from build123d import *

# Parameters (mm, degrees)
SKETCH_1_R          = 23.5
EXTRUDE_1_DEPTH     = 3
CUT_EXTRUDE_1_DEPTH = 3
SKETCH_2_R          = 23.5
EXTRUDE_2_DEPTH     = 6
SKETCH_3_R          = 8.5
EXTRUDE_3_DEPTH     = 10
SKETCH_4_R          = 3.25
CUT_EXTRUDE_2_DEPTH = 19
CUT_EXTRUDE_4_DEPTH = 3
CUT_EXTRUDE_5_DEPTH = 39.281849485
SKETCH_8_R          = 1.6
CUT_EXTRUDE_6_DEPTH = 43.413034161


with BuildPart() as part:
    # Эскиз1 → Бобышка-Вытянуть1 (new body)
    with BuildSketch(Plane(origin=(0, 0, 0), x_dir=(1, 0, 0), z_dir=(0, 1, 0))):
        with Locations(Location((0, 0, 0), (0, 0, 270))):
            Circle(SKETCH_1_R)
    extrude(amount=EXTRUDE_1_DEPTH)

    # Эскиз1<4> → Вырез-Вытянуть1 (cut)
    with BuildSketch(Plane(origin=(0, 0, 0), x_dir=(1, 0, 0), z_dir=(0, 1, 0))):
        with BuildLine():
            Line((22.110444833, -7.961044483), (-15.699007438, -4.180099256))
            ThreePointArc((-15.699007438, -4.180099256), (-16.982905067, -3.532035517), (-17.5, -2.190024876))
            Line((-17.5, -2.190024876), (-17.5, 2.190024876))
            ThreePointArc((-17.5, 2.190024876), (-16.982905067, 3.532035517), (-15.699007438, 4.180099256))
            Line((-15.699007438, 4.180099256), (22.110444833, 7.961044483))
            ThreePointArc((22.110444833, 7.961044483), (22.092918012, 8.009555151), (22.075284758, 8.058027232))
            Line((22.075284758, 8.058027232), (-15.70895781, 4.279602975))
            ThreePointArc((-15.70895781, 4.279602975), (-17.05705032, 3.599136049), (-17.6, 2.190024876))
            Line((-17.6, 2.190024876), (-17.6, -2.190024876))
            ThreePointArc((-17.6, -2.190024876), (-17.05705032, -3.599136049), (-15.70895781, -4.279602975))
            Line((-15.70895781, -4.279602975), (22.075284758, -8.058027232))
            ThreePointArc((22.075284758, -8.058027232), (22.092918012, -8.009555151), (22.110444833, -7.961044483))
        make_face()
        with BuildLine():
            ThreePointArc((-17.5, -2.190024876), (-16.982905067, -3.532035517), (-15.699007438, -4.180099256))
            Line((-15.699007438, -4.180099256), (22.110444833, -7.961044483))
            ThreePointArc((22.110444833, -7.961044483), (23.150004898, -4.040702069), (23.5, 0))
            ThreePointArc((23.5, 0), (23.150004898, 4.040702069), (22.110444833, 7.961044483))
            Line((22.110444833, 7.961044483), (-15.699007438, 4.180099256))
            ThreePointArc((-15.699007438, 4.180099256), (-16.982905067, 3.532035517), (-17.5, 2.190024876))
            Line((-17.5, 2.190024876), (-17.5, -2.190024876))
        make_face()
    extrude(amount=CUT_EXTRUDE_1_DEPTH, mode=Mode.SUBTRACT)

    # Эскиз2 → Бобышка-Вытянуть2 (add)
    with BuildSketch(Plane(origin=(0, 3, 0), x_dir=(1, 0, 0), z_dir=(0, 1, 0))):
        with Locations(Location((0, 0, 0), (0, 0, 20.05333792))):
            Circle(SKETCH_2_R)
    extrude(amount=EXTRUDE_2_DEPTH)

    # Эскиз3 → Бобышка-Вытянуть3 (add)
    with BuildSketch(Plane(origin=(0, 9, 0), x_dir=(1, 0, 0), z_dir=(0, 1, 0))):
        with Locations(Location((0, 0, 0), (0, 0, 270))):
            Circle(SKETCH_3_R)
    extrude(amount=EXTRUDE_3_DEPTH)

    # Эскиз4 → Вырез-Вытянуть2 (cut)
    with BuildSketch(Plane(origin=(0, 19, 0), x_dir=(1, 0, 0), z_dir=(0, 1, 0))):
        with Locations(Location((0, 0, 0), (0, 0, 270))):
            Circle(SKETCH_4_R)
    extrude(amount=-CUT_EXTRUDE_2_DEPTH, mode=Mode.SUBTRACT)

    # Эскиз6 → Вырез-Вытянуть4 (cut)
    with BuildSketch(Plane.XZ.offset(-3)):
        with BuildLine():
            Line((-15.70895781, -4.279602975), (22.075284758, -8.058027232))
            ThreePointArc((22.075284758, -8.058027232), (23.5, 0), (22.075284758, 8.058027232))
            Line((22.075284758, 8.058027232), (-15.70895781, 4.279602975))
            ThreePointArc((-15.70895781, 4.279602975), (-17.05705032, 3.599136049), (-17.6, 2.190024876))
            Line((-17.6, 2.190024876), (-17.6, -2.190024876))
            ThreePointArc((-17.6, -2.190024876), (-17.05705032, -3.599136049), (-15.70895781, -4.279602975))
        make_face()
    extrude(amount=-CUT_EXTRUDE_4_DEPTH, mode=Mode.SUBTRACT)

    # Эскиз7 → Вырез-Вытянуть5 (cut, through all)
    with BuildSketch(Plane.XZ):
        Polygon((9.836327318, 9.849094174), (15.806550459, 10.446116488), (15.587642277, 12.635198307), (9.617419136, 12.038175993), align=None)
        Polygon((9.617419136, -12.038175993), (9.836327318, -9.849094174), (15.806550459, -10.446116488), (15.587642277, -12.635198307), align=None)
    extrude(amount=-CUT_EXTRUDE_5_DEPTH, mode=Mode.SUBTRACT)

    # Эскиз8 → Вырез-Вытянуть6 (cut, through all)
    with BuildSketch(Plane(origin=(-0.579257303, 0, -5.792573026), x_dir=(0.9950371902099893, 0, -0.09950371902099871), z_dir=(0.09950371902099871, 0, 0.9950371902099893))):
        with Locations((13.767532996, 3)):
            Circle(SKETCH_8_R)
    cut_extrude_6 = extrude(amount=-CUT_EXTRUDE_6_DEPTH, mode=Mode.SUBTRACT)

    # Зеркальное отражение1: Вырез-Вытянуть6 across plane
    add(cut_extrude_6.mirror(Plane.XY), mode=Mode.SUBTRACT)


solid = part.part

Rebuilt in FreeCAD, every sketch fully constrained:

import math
import FreeCAD as App
import Part
import Sketcher

V = App.Vector
Q = App.Units.Quantity


def add_polygon(sketch, points):
    """Adds a closed chain of lines whose ends are joined by coincident constraints."""
    first, n = sketch.GeometryCount, len(points)
    for a, b in zip(points, points[1:] + points[:1]):
        sketch.addGeometry(Part.LineSegment(App.Vector(*a, 0), App.Vector(*b, 0)), False)
    for i in range(n):
        sketch.addConstraint(Sketcher.Constraint("Coincident", first + i, 2, first + (i + 1) % n, 1))

doc = App.newDocument("Part")
body = doc.addObject("PartDesign::Body", "Body")

sketch1 = body.newObject("Sketcher::SketchObject", "Sketch")
sketch1.AttachmentSupport = (doc.getObject("XZ_Plane"), [""])
sketch1.MapMode = "FlatFace"
sketch1.addGeometry(Part.Circle(V(0, 0, 0), V(0, 0, 1), 24), False)
sketch1.addConstraint([
    Sketcher.Constraint("Coincident", 0, 3, -1, 1),
    Sketcher.Constraint("Diameter", 0, Q("47 mm")),
])
pad1 = body.newObject("PartDesign::Pad", "Pad")
pad1.Profile = sketch1
pad1.Length = 3
pad1.Reversed = True

sketch2 = body.newObject("Sketcher::SketchObject", "Sketch001")
sketch2.AttachmentSupport = (doc.getObject("XZ_Plane"), [""])
sketch2.MapMode = "FlatFace"
sketch2.addGeometry([
    Part.ArcOfCircle(Part.Circle(V(0, 0, 0), V(0, 0, 1), 23.5), math.radians(-20.05), math.radians(-19.8)),
    Part.LineSegment(V(22.08, -8.06, 0), V(-15.71, -4.28, 0)),
    Part.ArcOfCircle(Part.Circle(V(-15.5, -2.19, 0), V(0, 0, 1), 2.1), math.radians(-180), math.radians(-96)),
    Part.LineSegment(V(-17.6, -2.19, 0), V(-17.6, 2.19, 0)),
    Part.ArcOfCircle(Part.Circle(V(-15.5, 2.19, 0), V(0, 0, 1), 2.1), math.radians(96), math.radians(180)),
    Part.LineSegment(V(-15.71, 4.28, 0), V(22.08, 8.06, 0)),
    Part.ArcOfCircle(Part.Circle(V(0, 0, 0), V(0, 0, 1), 23.5), math.radians(19.8), math.radians(20.05)),
    Part.ArcOfCircle(Part.Circle(V(0, 0, 0), V(0, 0, 1), 23.5), math.radians(0), math.radians(19.8)),
    Part.ArcOfCircle(Part.Circle(V(0, 0, 0), V(0, 0, 1), 23.5), math.radians(-19.8), math.radians(0)),
], False)
sketch2.addConstraint([
    Sketcher.Constraint("Coincident", 0, 1, 1, 1),
    Sketcher.Constraint("Tangent", 1, 2, 2, 2),
    Sketcher.Constraint("Tangent", 2, 1, 3, 1),
    Sketcher.Constraint("Tangent", 3, 2, 4, 2),
    Sketcher.Constraint("Tangent", 4, 1, 5, 1),
    Sketcher.Constraint("Coincident", 5, 2, 6, 2),
    Sketcher.Constraint("Tangent", 6, 1, 7, 2),
    Sketcher.Constraint("Tangent", 7, 1, 8, 2),
    Sketcher.Constraint("Tangent", 8, 1, 0, 2),
    Sketcher.Constraint("Vertical", 3),
    Sketcher.Constraint("Coincident", 7, 3, -1, 1),
    Sketcher.Constraint("Equal", 2, 4),
    Sketcher.Constraint("Equal", 0, 6),
    Sketcher.Constraint("Equal", 7, 8),
    Sketcher.Constraint("Symmetric", 1, 2, 4, 1, -1),
    Sketcher.Constraint("PointOnObject", 7, 1, -1),
    Sketcher.Constraint("Vertical", 6, 1, 8, 1),
    Sketcher.Constraint("Radius", 2, Q("2.1 mm")),
    Sketcher.Constraint("Radius", 7, Q("23.5 mm")),
    Sketcher.Constraint("DistanceX", 2, 3, -1, 1, Q("15.5 mm")),
    Sketcher.Constraint("Radius", 0, Q("23.499948 mm")),
    Sketcher.Constraint("DistanceY", 3, 1, 3, 2, Q("4.38005 mm")),
    Sketcher.Constraint("DistanceY", 0, 1, 0, 3, Q("8.058009 mm")),
    Sketcher.Constraint("DistanceX", 5, 2, 6, 1, Q("0.03516 mm")),
])
pocket1 = body.newObject("PartDesign::Pocket", "Pocket")
pocket1.Profile = sketch2
pocket1.Length = 3

sketch3 = body.newObject("Sketcher::SketchObject", "Sketch002")
sketch3.AttachmentSupport = (doc.getObject("XZ_Plane"), [""])
sketch3.MapMode = "FlatFace"
sketch3.AttachmentOffset = App.Placement(V(0, 0, -3), App.Rotation())
sketch3.addGeometry(Part.Circle(V(0, 0, 0), V(0, 0, 1), 24), False)
sketch3.addConstraint([
    Sketcher.Constraint("Coincident", 0, 3, -1, 1),
    Sketcher.Constraint("Diameter", 0, Q("47 mm")),
])
pad2 = body.newObject("PartDesign::Pad", "Pad001")
pad2.Profile = sketch3
pad2.Length = 6
pad2.Reversed = True

sketch4 = body.newObject("Sketcher::SketchObject", "Sketch003")
sketch4.AttachmentSupport = (doc.getObject("XZ_Plane"), [""])
sketch4.MapMode = "FlatFace"
sketch4.AttachmentOffset = App.Placement(V(0, 0, -9), App.Rotation())
sketch4.addGeometry(Part.Circle(V(0, 0, 0), V(0, 0, 1), 8), False)
sketch4.addConstraint([
    Sketcher.Constraint("Coincident", 0, 3, -1, 1),
    Sketcher.Constraint("Diameter", 0, Q("17 mm")),
])
pad3 = body.newObject("PartDesign::Pad", "Pad002")
pad3.Profile = sketch4
pad3.Length = 10
pad3.Reversed = True

sketch5 = body.newObject("Sketcher::SketchObject", "Sketch004")
sketch5.AttachmentSupport = (doc.getObject("XZ_Plane"), [""])
sketch5.MapMode = "FlatFace"
sketch5.AttachmentOffset = App.Placement(V(0, 0, -19), App.Rotation())
sketch5.addGeometry(Part.Circle(V(0, 0, 0), V(0, 0, 1), 3.2), False)
sketch5.addConstraint([
    Sketcher.Constraint("Coincident", 0, 3, -1, 1),
    Sketcher.Constraint("Diameter", 0, Q("6.5 mm")),
])
pocket2 = body.newObject("PartDesign::Pocket", "Pocket001")
pocket2.Profile = sketch5
pocket2.Length = 19
pocket2.Reversed = True

sketch6 = body.newObject("Sketcher::SketchObject", "Sketch005")
sketch6.AttachmentSupport = (doc.getObject("XZ_Plane"), [""])
sketch6.MapMode = "FlatFace"
sketch6.AttachmentOffset = App.Placement(V(0, 0, -3), App.Rotation())
sketch6.addGeometry([
    Part.LineSegment(V(-15.7, -4.3, 0), V(22.1, -8.1, 0)),
    Part.ArcOfCircle(Part.Circle(V(0, 0, 0), V(0, 0, 1), 23.5), math.radians(-20), math.radians(20)),
    Part.LineSegment(V(22.1, 8.1, 0), V(-15.7, 4.3, 0)),
    Part.ArcOfCircle(Part.Circle(V(-15.5, 2.2, 0), V(0, 0, 1), 2.1), math.radians(96), math.radians(180)),
    Part.LineSegment(V(-17.6, 2.2, 0), V(-17.6, -2.2, 0)),
    Part.ArcOfCircle(Part.Circle(V(-15.5, -2.2, 0), V(0, 0, 1), 2.1), math.radians(-180), math.radians(-96)),
], False)
sketch6.addConstraint([
    Sketcher.Constraint("Coincident", 0, 2, 1, 1),
    Sketcher.Constraint("Coincident", 1, 2, 2, 1),
    Sketcher.Constraint("Tangent", 2, 2, 3, 1),
    Sketcher.Constraint("Tangent", 3, 2, 4, 1),
    Sketcher.Constraint("Tangent", 4, 2, 5, 1),
    Sketcher.Constraint("Tangent", 5, 2, 0, 1),
    Sketcher.Constraint("Vertical", 4),
    Sketcher.Constraint("Coincident", 1, 3, -1, 1),
    Sketcher.Constraint("Equal", 3, 5),
    Sketcher.Constraint("Symmetric", 2, 2, 5, 2, -1),
    Sketcher.Constraint("Radius", 1, Q("23.5 mm")),
    Sketcher.Constraint("Radius", 3, Q("2.1 mm")),
    Sketcher.Constraint("DistanceX", 3, 3, -1, 1, Q("15.5 mm")),
    Sketcher.Constraint("DistanceY", 4, 2, 4, 1, Q("4.38005 mm")),
    Sketcher.Constraint("DistanceY", 3, 3, 2, 2, Q("2.089578 mm")),
])
pocket3 = body.newObject("PartDesign::Pocket", "Pocket002")
pocket3.Profile = sketch6
pocket3.Length = 3

sketch7 = body.newObject("Sketcher::SketchObject", "Sketch006")
sketch7.AttachmentSupport = (doc.getObject("XZ_Plane"), [""])
sketch7.MapMode = "FlatFace"
add_polygon(sketch7, [(9.8, 9.8), (15.8, 10.4), (15.6, 12.6), (9.6, 12)])
add_polygon(sketch7, [(9.8, -9.8), (9.6, -12), (15.6, -12.6), (15.8, -10.4)])
sketch7.addConstraint([
    Sketcher.Constraint("Symmetric", 2, 2, 4, 2, -1),
    Sketcher.Constraint("Symmetric", 1, 2, 5, 2, -1),
    Sketcher.Constraint("Symmetric", 0, 2, 6, 2, -1),
    Sketcher.Constraint("Symmetric", 3, 2, 7, 2, -1),
    Sketcher.Constraint("Perpendicular", 0, 1),
    Sketcher.Constraint("Perpendicular", 1, 2),
    Sketcher.Constraint("Perpendicular", 2, 3),
    Sketcher.Constraint("Distance", 0, Q("6 mm")),
    Sketcher.Constraint("Distance", 1, Q("2.2 mm")),
    Sketcher.Constraint("DistanceY", -1, 1, 1, 2, Q("12.635198 mm")),
    Sketcher.Constraint("DistanceX", -1, 1, 0, 2, Q("15.80655 mm")),
    Sketcher.Constraint("DistanceX", -1, 1, 2, 2, Q("9.617419 mm")),
])
pocket4 = body.newObject("PartDesign::Pocket", "Pocket003")
pocket4.Profile = sketch7
pocket4.Type = "ThroughAll"

sketch8 = body.newObject("Sketcher::SketchObject", "Sketch007")
sketch8.Placement = App.Placement(V(-0.579257, 0, -5.792573), App.Rotation(V(0.99503719, 0, -0.099503719), V(0, 1, 0), V(0.099503719, 0, 0.99503719), "ZXY"))
sketch8.addGeometry(Part.Circle(V(13.8, 3, 0), V(0, 0, 1), 1.6), False)
sketch8.addConstraint([
    Sketcher.Constraint("Diameter", 0, Q("3.2 mm")),
    Sketcher.Constraint("DistanceY", -1, 1, 0, 3, Q("3 mm")),
    Sketcher.Constraint("DistanceX", -1, 1, 0, 3, Q("13.767533 mm")),
])
pocket5 = body.newObject("PartDesign::Pocket", "Pocket004")
pocket5.Profile = sketch8
pocket5.Type = "ThroughAll"
doc.recompute()

mirrored = body.newObject("PartDesign::Mirrored", "Mirrored")
mirrored.Originals = [pocket5]
mirrored.MirrorPlane = (doc.getObject("XY_Plane"), [""])
body.Tip = mirrored

doc.recompute()
